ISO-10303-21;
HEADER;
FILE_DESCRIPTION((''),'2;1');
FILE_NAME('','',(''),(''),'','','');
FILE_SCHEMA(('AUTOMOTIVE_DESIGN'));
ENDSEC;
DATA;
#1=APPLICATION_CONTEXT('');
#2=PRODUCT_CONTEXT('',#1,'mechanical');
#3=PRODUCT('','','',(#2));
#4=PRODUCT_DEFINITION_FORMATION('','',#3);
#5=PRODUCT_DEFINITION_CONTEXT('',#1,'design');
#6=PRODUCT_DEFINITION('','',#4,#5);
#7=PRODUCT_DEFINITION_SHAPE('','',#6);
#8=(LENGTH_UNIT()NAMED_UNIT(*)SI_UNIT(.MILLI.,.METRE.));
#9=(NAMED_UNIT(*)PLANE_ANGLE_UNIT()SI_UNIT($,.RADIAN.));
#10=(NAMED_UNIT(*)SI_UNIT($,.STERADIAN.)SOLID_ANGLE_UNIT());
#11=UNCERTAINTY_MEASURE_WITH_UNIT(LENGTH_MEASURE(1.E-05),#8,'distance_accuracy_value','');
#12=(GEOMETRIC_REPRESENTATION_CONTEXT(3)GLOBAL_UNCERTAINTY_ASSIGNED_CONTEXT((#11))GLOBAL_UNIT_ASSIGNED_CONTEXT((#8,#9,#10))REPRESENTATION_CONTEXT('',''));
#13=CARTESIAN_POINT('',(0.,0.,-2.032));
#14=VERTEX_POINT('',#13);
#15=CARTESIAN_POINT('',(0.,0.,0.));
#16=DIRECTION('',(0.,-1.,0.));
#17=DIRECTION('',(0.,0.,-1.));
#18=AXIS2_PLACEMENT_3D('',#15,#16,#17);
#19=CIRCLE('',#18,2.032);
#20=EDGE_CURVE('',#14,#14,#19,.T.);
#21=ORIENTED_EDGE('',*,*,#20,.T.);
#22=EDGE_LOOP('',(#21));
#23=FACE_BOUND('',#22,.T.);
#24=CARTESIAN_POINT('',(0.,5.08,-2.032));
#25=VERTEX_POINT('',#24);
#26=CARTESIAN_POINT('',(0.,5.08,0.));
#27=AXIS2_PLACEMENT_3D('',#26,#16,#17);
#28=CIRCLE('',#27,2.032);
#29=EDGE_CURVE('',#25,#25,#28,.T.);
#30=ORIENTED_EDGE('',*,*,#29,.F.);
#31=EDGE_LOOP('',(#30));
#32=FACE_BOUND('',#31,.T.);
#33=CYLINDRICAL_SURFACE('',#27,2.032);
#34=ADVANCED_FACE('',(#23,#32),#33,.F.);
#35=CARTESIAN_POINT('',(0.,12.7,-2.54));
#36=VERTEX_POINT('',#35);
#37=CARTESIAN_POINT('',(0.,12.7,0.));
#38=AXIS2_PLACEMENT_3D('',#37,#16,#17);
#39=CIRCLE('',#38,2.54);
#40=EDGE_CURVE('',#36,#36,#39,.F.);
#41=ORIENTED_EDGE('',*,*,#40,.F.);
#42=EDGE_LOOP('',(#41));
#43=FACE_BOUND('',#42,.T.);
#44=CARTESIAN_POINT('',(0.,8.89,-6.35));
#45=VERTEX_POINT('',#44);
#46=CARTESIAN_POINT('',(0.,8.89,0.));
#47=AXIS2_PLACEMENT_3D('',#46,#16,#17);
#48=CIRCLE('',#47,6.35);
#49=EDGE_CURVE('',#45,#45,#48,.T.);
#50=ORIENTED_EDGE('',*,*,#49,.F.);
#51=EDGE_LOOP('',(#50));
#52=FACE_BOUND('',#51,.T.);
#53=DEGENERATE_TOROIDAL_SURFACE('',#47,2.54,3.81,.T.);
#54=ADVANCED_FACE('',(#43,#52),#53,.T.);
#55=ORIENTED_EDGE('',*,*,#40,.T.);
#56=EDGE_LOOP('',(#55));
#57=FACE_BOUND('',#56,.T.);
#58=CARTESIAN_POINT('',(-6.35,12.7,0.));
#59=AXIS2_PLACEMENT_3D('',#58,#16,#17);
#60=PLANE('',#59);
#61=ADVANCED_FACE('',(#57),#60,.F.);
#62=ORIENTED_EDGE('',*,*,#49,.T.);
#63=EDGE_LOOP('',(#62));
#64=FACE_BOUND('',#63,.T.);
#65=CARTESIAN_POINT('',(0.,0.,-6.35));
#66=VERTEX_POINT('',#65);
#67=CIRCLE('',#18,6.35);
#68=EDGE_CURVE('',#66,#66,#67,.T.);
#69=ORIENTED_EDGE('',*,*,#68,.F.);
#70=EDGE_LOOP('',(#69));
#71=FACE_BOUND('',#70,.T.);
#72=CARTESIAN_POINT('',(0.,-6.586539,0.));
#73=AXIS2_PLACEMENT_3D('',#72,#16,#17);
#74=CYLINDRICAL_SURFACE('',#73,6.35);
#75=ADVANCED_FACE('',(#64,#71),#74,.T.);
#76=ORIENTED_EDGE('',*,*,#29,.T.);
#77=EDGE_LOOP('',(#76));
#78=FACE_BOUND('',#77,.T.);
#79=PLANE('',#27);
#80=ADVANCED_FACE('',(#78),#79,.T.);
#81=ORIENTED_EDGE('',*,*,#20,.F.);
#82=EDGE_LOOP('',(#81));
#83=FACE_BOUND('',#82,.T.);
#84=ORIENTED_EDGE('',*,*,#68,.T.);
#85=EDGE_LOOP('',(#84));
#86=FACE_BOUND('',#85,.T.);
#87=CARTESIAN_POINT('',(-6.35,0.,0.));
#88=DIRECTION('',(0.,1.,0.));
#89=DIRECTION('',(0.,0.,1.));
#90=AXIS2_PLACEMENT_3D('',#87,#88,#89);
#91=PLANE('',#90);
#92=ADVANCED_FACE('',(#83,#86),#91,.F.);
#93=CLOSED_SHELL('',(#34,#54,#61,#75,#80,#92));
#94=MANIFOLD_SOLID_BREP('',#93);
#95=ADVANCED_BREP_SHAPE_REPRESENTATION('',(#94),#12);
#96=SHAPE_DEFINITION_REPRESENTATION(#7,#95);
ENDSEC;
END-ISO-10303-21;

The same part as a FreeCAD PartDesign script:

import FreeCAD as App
import Part
import Sketcher
from FreeCAD import Vector
Q = App.Units.Quantity


def edges_at(feature, points):
    """Names of the edges that pass closest to the given points."""
    edges = feature.Shape.Edges
    near = lambda p: min(range(len(edges)), key=lambda i: edges[i].distToShape(Part.Vertex(*p))[0])
    return sorted({f"Edge{near(p) + 1}" for p in points})


def add_polygon(sketch, points):
    """Adds a closed chain of lines whose ends are joined by coincident constraints."""
    first, n = sketch.GeometryCount, len(points)
    for a, b in zip(points, points[1:] + points[:1]):
        sketch.addGeometry(Part.LineSegment(App.Vector(*a, 0), App.Vector(*b, 0)), False)
    for i in range(n):
        sketch.addConstraint(Sketcher.Constraint("Coincident", first + i, 2, first + (i + 1) % n, 1))

doc = App.newDocument("Part")
body = doc.addObject("PartDesign::Body", "Body")

# Sketch on XY plane
sketch1 = doc.addObject("Sketcher::SketchObject", "Sketch")
body.addObject(sketch1)
sketch1.AttachmentSupport = (doc.XY_Plane, [""])
sketch1.MapMode = "FlatFace"
add_polygon(sketch1, [(-6, 13), (-6, 0), (0, 0), (0, 13)])  # lines 0-3
sketch1.addConstraint(Sketcher.Constraint("Vertical", 0))
sketch1.addConstraint(Sketcher.Constraint("Horizontal", 1))
sketch1.addConstraint(Sketcher.Constraint("Vertical", 2))
sketch1.addConstraint(Sketcher.Constraint("Horizontal", 3))
sketch1.addConstraint(Sketcher.Constraint("Coincident", 1, 2, -1, 1))
sketch1.addConstraint(Sketcher.Constraint("DistanceY", 0, 2, 0, 1, Q("0.5 in")))
sketch1.addConstraint(Sketcher.Constraint("DistanceX", 1, 1, 1, 2, Q("0.25 in")))
revolution = doc.addObject("PartDesign::Revolution", "Revolution")
body.addObject(revolution)
revolution.Profile = sketch1
revolution.ReferenceAxis = (sketch1, ["V_Axis"])
revolution.Angle = 360
doc.recompute()

fillet = doc.addObject("PartDesign::Fillet", "Fillet")
body.addObject(fillet)
fillet.Base = (revolution, edges_at(revolution, [(0, 12.7, 6.35)]))
fillet.Radius = Q("0.15 in")

# Sketch on XZ plane
sketch2 = doc.addObject("Sketcher::SketchObject", "Sketch001")
body.addObject(sketch2)
sketch2.AttachmentSupport = (doc.XZ_Plane, [""])
sketch2.MapMode = "FlatFace"
sketch2.addGeometry(Part.Circle(Vector(0, 0, 0), Vector(0, 0, 1), 2), False)
sketch2.addConstraint(Sketcher.Constraint("Coincident", 0, 3, -1, 1))
sketch2.addConstraint(Sketcher.Constraint("Diameter", 0, Q("0.16 in")))
pocket1 = doc.addObject("PartDesign::Pocket", "Pocket")
body.addObject(pocket1)
pocket1.Profile = sketch2
pocket1.Length = Q("0.2 in")

doc.recompute()
